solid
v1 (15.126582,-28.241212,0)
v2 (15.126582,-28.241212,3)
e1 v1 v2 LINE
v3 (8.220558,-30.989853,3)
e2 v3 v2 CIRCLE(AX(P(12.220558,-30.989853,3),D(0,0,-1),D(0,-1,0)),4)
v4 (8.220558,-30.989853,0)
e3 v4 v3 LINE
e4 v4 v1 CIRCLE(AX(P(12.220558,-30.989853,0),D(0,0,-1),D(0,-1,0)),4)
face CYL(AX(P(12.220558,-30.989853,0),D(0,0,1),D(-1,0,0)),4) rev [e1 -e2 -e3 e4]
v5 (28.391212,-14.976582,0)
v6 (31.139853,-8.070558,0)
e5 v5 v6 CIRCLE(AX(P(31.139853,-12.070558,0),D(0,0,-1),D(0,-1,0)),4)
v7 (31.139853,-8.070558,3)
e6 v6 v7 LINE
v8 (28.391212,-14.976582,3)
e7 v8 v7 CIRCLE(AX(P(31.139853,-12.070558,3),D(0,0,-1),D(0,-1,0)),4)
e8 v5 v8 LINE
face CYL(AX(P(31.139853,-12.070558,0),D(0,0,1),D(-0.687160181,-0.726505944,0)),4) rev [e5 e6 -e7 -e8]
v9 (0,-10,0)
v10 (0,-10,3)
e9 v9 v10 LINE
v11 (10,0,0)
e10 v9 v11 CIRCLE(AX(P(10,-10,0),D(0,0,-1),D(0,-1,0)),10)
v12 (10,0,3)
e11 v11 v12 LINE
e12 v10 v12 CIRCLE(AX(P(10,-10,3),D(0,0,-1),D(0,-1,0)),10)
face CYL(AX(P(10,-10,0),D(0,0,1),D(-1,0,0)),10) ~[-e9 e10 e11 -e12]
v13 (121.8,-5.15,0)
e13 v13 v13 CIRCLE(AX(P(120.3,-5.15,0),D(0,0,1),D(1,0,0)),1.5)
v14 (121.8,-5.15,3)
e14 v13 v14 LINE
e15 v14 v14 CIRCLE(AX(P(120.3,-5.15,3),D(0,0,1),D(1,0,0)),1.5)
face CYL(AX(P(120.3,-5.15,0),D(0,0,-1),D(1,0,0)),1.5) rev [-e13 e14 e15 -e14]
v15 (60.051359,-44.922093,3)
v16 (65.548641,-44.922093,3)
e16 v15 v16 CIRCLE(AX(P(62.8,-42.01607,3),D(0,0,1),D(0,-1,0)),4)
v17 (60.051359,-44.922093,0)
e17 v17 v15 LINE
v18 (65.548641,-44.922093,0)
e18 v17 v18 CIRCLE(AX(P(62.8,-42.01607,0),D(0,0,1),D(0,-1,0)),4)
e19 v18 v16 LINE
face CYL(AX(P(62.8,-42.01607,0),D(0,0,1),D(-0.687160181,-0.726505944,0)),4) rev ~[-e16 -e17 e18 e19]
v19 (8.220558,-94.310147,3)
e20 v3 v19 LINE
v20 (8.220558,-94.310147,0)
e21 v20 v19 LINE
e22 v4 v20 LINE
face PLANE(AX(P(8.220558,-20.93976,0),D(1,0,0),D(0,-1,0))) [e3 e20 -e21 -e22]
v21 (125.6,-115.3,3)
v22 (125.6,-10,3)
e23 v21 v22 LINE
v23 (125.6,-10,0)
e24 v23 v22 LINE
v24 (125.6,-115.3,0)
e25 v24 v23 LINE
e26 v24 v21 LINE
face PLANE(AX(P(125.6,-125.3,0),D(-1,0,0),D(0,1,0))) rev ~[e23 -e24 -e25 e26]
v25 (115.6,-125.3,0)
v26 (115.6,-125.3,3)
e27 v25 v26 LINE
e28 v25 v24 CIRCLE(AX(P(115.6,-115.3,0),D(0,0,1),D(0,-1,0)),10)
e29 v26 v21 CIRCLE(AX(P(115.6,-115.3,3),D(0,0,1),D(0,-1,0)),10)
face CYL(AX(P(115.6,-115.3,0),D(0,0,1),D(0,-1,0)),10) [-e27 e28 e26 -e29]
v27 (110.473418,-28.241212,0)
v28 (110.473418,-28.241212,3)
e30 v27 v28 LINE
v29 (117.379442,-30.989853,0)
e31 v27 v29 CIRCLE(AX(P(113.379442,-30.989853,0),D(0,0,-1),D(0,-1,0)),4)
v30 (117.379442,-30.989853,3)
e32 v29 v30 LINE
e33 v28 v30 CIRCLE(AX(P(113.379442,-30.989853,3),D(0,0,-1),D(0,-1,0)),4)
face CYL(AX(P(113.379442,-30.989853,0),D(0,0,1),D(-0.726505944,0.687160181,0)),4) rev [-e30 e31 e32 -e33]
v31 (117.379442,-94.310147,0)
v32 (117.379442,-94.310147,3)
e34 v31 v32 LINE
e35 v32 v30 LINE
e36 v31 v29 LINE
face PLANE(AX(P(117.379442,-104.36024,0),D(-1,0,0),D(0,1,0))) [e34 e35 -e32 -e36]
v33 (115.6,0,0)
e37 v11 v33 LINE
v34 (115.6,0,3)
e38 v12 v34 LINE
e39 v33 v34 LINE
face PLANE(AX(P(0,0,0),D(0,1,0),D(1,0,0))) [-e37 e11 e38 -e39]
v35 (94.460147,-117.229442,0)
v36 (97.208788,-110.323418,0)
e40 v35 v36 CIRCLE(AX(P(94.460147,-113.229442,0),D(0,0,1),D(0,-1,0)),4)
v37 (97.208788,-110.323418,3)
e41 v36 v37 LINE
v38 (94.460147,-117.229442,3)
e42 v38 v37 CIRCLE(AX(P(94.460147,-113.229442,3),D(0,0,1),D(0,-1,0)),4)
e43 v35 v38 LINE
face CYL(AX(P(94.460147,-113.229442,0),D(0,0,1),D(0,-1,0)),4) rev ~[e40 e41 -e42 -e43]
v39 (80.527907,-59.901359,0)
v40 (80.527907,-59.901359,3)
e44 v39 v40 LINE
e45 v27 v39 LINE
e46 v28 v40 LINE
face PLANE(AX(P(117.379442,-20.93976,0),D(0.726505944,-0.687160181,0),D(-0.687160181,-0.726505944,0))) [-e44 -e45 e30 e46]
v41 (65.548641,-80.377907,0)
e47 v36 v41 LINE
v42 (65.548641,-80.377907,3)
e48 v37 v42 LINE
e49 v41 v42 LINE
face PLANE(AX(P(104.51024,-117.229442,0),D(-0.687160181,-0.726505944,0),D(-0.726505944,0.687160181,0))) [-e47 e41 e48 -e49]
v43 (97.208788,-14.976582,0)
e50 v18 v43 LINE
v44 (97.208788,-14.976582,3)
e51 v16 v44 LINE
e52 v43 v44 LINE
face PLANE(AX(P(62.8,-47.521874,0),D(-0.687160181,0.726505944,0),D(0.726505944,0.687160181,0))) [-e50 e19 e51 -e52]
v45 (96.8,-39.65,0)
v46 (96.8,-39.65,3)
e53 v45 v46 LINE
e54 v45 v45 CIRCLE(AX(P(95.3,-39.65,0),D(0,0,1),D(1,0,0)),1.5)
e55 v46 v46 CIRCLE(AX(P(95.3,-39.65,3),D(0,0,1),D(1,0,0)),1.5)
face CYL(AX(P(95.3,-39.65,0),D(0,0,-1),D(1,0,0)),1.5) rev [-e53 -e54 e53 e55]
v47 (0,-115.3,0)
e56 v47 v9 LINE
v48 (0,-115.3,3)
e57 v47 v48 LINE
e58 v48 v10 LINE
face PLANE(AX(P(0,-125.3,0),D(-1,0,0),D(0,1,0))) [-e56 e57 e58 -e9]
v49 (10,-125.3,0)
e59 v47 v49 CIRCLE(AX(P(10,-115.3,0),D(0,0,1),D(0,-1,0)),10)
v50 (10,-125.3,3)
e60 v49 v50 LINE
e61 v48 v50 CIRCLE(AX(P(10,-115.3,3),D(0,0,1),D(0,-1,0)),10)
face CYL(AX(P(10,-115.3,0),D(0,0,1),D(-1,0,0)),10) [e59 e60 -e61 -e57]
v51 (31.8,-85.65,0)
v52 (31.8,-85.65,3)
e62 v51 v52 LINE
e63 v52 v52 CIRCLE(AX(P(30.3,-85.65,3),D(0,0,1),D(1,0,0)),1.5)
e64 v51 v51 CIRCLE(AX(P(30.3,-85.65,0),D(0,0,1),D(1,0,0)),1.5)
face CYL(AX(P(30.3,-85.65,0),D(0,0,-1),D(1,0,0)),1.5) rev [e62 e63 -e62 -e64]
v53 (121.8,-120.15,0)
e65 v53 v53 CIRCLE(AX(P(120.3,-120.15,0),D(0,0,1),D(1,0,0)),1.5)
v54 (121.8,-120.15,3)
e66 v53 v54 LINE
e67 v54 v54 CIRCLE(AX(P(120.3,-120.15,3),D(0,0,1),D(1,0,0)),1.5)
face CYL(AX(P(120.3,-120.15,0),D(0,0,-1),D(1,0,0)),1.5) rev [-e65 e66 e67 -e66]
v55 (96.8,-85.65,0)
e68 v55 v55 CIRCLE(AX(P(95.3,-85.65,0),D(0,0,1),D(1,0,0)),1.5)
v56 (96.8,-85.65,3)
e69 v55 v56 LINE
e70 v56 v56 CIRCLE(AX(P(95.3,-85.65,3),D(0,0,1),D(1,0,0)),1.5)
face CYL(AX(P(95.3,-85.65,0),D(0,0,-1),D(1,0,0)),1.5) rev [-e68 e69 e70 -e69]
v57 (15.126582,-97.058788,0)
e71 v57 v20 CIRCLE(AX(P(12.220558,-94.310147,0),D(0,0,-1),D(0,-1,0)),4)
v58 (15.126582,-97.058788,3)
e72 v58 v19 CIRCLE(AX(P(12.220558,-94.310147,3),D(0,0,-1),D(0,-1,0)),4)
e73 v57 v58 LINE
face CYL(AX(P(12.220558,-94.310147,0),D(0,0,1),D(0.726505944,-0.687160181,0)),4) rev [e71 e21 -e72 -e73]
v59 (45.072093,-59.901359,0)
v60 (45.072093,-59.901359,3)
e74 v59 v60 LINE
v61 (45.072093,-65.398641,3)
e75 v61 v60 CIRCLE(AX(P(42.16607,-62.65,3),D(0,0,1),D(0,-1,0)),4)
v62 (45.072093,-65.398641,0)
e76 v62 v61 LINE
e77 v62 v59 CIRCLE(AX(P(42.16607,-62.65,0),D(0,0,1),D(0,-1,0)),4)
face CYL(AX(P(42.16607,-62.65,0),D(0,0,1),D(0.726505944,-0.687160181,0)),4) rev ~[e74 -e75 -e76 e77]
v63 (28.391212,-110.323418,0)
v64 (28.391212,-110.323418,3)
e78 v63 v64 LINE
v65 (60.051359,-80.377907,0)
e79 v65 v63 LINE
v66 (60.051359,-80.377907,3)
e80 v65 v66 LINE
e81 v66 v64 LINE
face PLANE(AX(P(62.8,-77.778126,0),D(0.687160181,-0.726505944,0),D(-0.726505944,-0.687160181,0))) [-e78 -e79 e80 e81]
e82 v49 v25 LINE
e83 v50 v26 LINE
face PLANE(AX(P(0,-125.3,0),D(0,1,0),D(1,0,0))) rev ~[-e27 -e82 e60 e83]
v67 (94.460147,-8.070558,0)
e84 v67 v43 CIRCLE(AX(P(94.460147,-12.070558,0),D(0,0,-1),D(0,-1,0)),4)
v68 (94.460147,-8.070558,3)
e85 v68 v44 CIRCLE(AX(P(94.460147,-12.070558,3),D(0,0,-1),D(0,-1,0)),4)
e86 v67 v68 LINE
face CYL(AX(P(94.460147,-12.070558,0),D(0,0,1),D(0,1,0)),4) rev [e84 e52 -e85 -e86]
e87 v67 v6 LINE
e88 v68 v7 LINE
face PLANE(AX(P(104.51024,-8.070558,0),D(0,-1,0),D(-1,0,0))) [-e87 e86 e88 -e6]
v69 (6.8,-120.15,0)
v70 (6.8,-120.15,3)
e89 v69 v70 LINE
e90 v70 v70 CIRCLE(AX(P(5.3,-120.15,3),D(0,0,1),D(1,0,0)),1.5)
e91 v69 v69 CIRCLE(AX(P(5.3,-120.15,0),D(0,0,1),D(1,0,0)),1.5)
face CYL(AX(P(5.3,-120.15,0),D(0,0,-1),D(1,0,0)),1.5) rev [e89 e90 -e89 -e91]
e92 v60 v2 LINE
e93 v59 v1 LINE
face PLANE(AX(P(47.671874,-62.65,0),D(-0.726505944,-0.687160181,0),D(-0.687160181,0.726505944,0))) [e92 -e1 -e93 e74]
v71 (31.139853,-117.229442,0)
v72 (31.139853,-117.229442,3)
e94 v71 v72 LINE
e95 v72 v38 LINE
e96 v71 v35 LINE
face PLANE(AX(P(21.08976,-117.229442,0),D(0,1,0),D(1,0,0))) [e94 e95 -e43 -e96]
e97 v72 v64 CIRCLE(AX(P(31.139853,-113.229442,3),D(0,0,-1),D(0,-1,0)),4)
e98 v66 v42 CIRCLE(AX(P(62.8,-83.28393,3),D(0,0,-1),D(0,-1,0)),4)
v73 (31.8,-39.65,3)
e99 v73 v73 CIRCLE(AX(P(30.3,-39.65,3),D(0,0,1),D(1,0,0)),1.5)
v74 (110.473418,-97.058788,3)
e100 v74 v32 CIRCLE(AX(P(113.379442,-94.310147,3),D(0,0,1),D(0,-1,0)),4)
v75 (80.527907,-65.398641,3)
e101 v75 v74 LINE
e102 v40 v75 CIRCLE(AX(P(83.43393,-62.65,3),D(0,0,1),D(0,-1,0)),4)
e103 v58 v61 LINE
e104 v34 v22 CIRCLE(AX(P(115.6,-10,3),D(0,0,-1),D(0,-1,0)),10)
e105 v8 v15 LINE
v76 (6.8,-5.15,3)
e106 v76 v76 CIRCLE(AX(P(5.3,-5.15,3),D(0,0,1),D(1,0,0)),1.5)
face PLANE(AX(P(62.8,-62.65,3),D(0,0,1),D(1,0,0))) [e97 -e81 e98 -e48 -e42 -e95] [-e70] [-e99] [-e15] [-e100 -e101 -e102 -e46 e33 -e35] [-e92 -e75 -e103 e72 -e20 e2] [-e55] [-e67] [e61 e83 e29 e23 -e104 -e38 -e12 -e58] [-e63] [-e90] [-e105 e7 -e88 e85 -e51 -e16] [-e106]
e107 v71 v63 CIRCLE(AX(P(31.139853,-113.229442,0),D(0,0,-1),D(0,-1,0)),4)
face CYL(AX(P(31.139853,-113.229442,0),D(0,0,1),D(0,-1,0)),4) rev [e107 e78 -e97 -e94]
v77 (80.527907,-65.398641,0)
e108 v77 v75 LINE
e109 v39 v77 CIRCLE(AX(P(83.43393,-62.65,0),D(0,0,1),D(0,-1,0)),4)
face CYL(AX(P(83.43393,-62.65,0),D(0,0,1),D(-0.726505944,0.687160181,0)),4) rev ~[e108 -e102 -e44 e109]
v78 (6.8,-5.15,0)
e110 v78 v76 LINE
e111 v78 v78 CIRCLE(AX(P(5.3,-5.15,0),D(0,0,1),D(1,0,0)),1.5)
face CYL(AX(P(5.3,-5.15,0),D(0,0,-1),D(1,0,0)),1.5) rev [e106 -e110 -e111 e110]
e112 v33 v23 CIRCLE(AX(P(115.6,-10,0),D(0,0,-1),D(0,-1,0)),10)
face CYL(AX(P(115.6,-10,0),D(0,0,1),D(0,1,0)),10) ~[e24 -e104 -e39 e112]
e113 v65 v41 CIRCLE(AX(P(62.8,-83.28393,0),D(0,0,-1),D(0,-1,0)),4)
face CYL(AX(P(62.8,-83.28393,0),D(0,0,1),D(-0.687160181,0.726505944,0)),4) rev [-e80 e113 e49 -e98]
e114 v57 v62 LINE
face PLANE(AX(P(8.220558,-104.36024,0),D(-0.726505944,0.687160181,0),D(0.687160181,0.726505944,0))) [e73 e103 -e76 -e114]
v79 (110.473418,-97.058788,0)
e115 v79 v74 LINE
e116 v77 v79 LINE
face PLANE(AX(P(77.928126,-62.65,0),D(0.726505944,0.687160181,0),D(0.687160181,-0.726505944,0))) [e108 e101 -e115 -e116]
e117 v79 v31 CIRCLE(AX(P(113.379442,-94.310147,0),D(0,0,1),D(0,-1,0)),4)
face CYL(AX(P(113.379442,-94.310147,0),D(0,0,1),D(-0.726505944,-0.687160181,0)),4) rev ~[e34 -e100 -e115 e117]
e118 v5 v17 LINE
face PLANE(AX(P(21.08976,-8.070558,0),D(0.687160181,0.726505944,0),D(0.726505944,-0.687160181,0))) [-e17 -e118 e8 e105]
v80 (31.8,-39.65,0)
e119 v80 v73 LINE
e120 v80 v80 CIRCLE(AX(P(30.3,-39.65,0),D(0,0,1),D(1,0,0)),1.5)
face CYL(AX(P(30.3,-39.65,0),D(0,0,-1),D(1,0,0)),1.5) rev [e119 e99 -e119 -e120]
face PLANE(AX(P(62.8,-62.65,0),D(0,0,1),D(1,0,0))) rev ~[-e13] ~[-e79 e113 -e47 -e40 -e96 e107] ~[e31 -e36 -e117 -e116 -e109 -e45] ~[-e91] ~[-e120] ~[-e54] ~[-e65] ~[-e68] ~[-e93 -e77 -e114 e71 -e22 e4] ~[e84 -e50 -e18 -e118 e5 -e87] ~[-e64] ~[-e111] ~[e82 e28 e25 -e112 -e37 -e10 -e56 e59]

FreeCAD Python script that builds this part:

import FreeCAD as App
import Part
import Sketcher
Q = App.Units.Quantity


def edges_at(feature, points):
    """Names of the edges that pass closest to the given points."""
    edges = feature.Shape.Edges
    near = lambda p: min(range(len(edges)), key=lambda i: edges[i].distToShape(Part.Vertex(*p))[0])
    return sorted({f"Edge{near(p) + 1}" for p in points})

doc = App.newDocument("Part")
body = doc.addObject("PartDesign::Body", "Body")

sketch1 = body.newObject("Sketcher::SketchObject", "Sketch")
sketch1.AttachmentSupport = (doc.getObject("XY_Plane"), [""])
sketch1.MapMode = "FlatFace"
sketch1.addGeometry([
    Part.LineSegment(App.Vector(0, 0, 0), App.Vector(0, -125.3, 0)),
    Part.LineSegment(App.Vector(0, -125.3, 0), App.Vector(125.6, -125.3, 0)),
    Part.LineSegment(App.Vector(125.6, -125.3, 0), App.Vector(125.6, 0, 0)),
    Part.LineSegment(App.Vector(125.6, 0, 0), App.Vector(0, 0, 0)),
    Part.Circle(App.Vector(5.3, -120.15, 0), App.Vector(0, 0, 1), 1.5),
    Part.Circle(App.Vector(30.3, -85.65, 0), App.Vector(0, 0, 1), 1.5),
    Part.LineSegment(App.Vector(104.51024, -117.229442, 0), App.Vector(21.08976, -117.229442, 0)),
    Part.LineSegment(App.Vector(21.08976, -117.229442, 0), App.Vector(62.8, -77.778126, 0)),
    Part.LineSegment(App.Vector(62.8, -77.778126, 0), App.Vector(104.51024, -117.229442, 0)),
    Part.Circle(App.Vector(120.3, -120.15, 0), App.Vector(0, 0, 1), 1.5),
    Part.Circle(App.Vector(95.3, -85.65, 0), App.Vector(0, 0, 1), 1.5),
    Part.LineSegment(App.Vector(47.671874, -62.65, 0), App.Vector(8.220558, -104.36024, 0)),
    Part.LineSegment(App.Vector(8.220558, -104.36024, 0), App.Vector(8.220558, -20.93976, 0)),
    Part.LineSegment(App.Vector(8.220558, -20.93976, 0), App.Vector(47.671874, -62.65, 0)),
    Part.Circle(App.Vector(30.3, -39.65, 0), App.Vector(0, 0, 1), 1.5),
    Part.Circle(App.Vector(5.3, -5.15, 0), App.Vector(0, 0, 1), 1.5),
    Part.LineSegment(App.Vector(77.928126, -62.65, 0), App.Vector(117.379442, -20.93976, 0)),
    Part.LineSegment(App.Vector(117.379442, -20.93976, 0), App.Vector(117.379442, -104.36024, 0)),
    Part.LineSegment(App.Vector(117.379442, -104.36024, 0), App.Vector(77.928126, -62.65, 0)),
    Part.Circle(App.Vector(95.3, -39.65, 0), App.Vector(0, 0, 1), 1.5),
    Part.LineSegment(App.Vector(62.8, -47.521874, 0), App.Vector(21.08976, -8.070558, 0)),
    Part.LineSegment(App.Vector(21.08976, -8.070558, 0), App.Vector(104.51024, -8.070558, 0)),
    Part.LineSegment(App.Vector(104.51024, -8.070558, 0), App.Vector(62.8, -47.521874, 0)),
    Part.Circle(App.Vector(120.3, -5.15, 0), App.Vector(0, 0, 1), 1.5),
], False)
sketch1.addConstraint([
    Sketcher.Constraint("Coincident", 0, 2, 1, 1),
    Sketcher.Constraint("Coincident", 1, 2, 2, 1),
    Sketcher.Constraint("Coincident", 2, 2, 3, 1),
    Sketcher.Constraint("Coincident", 3, 2, 0, 1),
    Sketcher.Constraint("Coincident", 6, 2, 7, 1),
    Sketcher.Constraint("Coincident", 7, 2, 8, 1),
    Sketcher.Constraint("Coincident", 8, 2, 6, 1),
    Sketcher.Constraint("Coincident", 11, 2, 12, 1),
    Sketcher.Constraint("Coincident", 12, 2, 13, 1),
    Sketcher.Constraint("Coincident", 13, 2, 11, 1),
    Sketcher.Constraint("Coincident", 16, 2, 17, 1),
    Sketcher.Constraint("Coincident", 17, 2, 18, 1),
    Sketcher.Constraint("Coincident", 18, 2, 16, 1),
    Sketcher.Constraint("Coincident", 20, 2, 21, 1),
    Sketcher.Constraint("Coincident", 21, 2, 22, 1),
    Sketcher.Constraint("Coincident", 22, 2, 20, 1),
    Sketcher.Constraint("Vertical", 0),
    Sketcher.Constraint("Horizontal", 1),
    Sketcher.Constraint("Vertical", 2),
    Sketcher.Constraint("Horizontal", 3),
    Sketcher.Constraint("Horizontal", 6),
    Sketcher.Constraint("Vertical", 12),
    Sketcher.Constraint("Vertical", 17),
    Sketcher.Constraint("Horizontal", 21),
    Sketcher.Constraint("Coincident", 3, 2, -1, 1),
    Sketcher.Constraint("Equal", 4, 5),
    Sketcher.Constraint("Equal", 5, 9),
    Sketcher.Constraint("Equal", 9, 10),
    Sketcher.Constraint("Equal", 10, 14),
    Sketcher.Constraint("Equal", 14, 15),
    Sketcher.Constraint("Equal", 15, 19),
    Sketcher.Constraint("Equal", 19, 23),
    Sketcher.Constraint("Perpendicular", 8, 11),
    Sketcher.Constraint("Perpendicular", 7, 13),
    Sketcher.Constraint("Parallel", 11, 16),
    Sketcher.Constraint("Parallel", 13, 18),
    Sketcher.Constraint("Perpendicular", 16, 20),
    Sketcher.Constraint("Perpendicular", 18, 22),
    Sketcher.Constraint("Horizontal", 4, 3, 9, 3),
    Sketcher.Constraint("Horizontal", 5, 3, 10, 3),
    Sketcher.Constraint("Horizontal", 14, 3, 19, 3),
    Sketcher.Constraint("Horizontal", 15, 3, 23, 3),
    Sketcher.Constraint("Horizontal", 12, 2, 16, 2),
    Sketcher.Constraint("Horizontal", 11, 2, 17, 2),
    Sketcher.Constraint("Horizontal", 13, 2, 18, 2),
    Sketcher.Constraint("Vertical", 5, 3, 14, 3),
    Sketcher.Constraint("Vertical", 4, 3, 15, 3),
    Sketcher.Constraint("Vertical", 10, 3, 19, 3),
    Sketcher.Constraint("Vertical", 9, 3, 23, 3),
    Sketcher.Constraint("Vertical", 6, 2, 20, 2),
    Sketcher.Constraint("Vertical", 8, 2, 21, 2),
    Sketcher.Constraint("Equal", 21, 12),
    Sketcher.Constraint("Diameter", 4, Q("3 mm")),
    Sketcher.Constraint("DistanceX", 1, 1, 1, 2, Q("125.6 mm")),
    Sketcher.Constraint("DistanceY", 0, 2, 0, 1, Q("125.3 mm")),
    Sketcher.Constraint("DistanceX", 4, 3, 5, 3, Q("25 mm")),
    Sketcher.Constraint("DistanceX", 5, 3, 9, 3, Q("90 mm")),
    Sketcher.Constraint("DistanceX", 10, 3, 9, 3, Q("25 mm")),
    Sketcher.Constraint("DistanceY", 5, 3, 14, 3, Q("46 mm")),
    Sketcher.Constraint("DistanceY", 4, 3, 15, 3, Q("115 mm")),
    Sketcher.Constraint("DistanceY", 13, 2, 14, 3, Q("23 mm")),
    Sketcher.Constraint("DistanceX", -1, 1, 4, 3, Q("5.3 mm")),
    Sketcher.Constraint("DistanceX", -1, 1, 7, 2, Q("62.8 mm")),
    Sketcher.Constraint("DistanceY", 4, 3, 5, 3, Q("34.5 mm")),
    Sketcher.Constraint("DistanceY", 4, 3, -1, 1, Q("120.15 mm")),
    Sketcher.Constraint("DistanceX", 6, 2, 6, 1, Q("83.42048 mm")),
    Sketcher.Constraint("Distance", 7, Q("57.412111 mm")),
    Sketcher.Constraint("DistanceX", 13, 2, 18, 2, Q("30.256251 mm")),
    Sketcher.Constraint("DistanceY", 7, 2, 22, 2, Q("30.256251 mm")),
    Sketcher.Constraint("DistanceY", 6, 2, -1, 1, Q("117.229442 mm")),
    Sketcher.Constraint("DistanceX", -1, 1, 11, 2, Q("8.220558 mm")),
])
pad1 = body.newObject("PartDesign::Pad", "Pad")
pad1.Profile = sketch1
pad1.Length = 3
doc.recompute()

fillet = body.newObject("PartDesign::Fillet", "Fillet")
fillet.Base = (pad1, edges_at(pad1, [
    (0, 0, 1.5),
    (125.6, 0, 1.5),
    (125.6, -125.3, 1.5),
    (0, -125.3, 1.5),
]))
fillet.Radius = 10
doc.recompute()

fillet2 = body.newObject("PartDesign::Fillet", "Fillet001")
fillet2.Base = (fillet, edges_at(fillet, [
    (62.8, -77.778, 1.5),
    (21.09, -117.229, 1.5),
    (104.51, -117.229, 1.5),
    (47.672, -62.65, 1.5),
    (8.221, -20.94, 1.5),
    (8.221, -104.36, 1.5),
    (62.8, -47.522, 1.5),
    (104.51, -8.071, 1.5),
    (21.09, -8.071, 1.5),
    (77.928, -62.65, 1.5),
    (117.379, -104.36, 1.5),
    (117.379, -20.94, 1.5),
]))
fillet2.Radius = 4

doc.recompute()
